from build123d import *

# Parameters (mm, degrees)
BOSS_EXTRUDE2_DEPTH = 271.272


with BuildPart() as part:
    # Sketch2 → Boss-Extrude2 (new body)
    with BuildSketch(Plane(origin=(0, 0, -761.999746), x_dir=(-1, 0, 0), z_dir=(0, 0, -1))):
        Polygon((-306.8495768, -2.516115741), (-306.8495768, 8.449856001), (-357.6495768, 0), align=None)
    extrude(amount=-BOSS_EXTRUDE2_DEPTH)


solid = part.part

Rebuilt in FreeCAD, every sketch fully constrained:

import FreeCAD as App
import Part
import Sketcher
from FreeCAD import Vector
Q = App.Units.Quantity


def add_polygon(sketch, points):
    """Adds a closed chain of lines whose ends are joined by coincident constraints."""
    first, n = sketch.GeometryCount, len(points)
    for a, b in zip(points, points[1:] + points[:1]):
        sketch.addGeometry(Part.LineSegment(App.Vector(*a, 0), App.Vector(*b, 0)), False)
    for i in range(n):
        sketch.addConstraint(Sketcher.Constraint("Coincident", first + i, 2, first + (i + 1) % n, 1))

doc = App.newDocument("Part")
body = doc.addObject("PartDesign::Body", "Body")

# Sketch on XY plane
sketch1 = body.newObject("Sketcher::SketchObject", "Sketch")
sketch1.AttachmentSupport = (doc.getObject("XY_Plane"), [""])
sketch1.MapMode = "FlatFace"
sketch1.AttachmentOffset = App.Placement(Vector(0, 0, -761.999746), App.Rotation())
add_polygon(sketch1, [(307, -3), (307, 8), (358, 0)])  # lines 0-2
sketch1.addConstraint(Sketcher.Constraint("Vertical", 0))
sketch1.addConstraint(Sketcher.Constraint("PointOnObject", 1, 2, -1))
sketch1.addConstraint(Sketcher.Constraint("DistanceX", 0, 2, 1, 2, Q("2 in")))
sketch1.addConstraint(Sketcher.Constraint("DistanceY", 0, 1, 0, 2, Q("10.965972 mm")))
sketch1.addConstraint(Sketcher.Constraint("Distance", 1, Q("51.497962 mm")))
sketch1.addConstraint(Sketcher.Constraint("DistanceX", -1, 1, 0, 2, Q("306.849577 mm")))
pad1 = body.newObject("PartDesign::Pad", "Pad")
pad1.Profile = sketch1
pad1.Length = Q("10.68 in")

doc.recompute()
